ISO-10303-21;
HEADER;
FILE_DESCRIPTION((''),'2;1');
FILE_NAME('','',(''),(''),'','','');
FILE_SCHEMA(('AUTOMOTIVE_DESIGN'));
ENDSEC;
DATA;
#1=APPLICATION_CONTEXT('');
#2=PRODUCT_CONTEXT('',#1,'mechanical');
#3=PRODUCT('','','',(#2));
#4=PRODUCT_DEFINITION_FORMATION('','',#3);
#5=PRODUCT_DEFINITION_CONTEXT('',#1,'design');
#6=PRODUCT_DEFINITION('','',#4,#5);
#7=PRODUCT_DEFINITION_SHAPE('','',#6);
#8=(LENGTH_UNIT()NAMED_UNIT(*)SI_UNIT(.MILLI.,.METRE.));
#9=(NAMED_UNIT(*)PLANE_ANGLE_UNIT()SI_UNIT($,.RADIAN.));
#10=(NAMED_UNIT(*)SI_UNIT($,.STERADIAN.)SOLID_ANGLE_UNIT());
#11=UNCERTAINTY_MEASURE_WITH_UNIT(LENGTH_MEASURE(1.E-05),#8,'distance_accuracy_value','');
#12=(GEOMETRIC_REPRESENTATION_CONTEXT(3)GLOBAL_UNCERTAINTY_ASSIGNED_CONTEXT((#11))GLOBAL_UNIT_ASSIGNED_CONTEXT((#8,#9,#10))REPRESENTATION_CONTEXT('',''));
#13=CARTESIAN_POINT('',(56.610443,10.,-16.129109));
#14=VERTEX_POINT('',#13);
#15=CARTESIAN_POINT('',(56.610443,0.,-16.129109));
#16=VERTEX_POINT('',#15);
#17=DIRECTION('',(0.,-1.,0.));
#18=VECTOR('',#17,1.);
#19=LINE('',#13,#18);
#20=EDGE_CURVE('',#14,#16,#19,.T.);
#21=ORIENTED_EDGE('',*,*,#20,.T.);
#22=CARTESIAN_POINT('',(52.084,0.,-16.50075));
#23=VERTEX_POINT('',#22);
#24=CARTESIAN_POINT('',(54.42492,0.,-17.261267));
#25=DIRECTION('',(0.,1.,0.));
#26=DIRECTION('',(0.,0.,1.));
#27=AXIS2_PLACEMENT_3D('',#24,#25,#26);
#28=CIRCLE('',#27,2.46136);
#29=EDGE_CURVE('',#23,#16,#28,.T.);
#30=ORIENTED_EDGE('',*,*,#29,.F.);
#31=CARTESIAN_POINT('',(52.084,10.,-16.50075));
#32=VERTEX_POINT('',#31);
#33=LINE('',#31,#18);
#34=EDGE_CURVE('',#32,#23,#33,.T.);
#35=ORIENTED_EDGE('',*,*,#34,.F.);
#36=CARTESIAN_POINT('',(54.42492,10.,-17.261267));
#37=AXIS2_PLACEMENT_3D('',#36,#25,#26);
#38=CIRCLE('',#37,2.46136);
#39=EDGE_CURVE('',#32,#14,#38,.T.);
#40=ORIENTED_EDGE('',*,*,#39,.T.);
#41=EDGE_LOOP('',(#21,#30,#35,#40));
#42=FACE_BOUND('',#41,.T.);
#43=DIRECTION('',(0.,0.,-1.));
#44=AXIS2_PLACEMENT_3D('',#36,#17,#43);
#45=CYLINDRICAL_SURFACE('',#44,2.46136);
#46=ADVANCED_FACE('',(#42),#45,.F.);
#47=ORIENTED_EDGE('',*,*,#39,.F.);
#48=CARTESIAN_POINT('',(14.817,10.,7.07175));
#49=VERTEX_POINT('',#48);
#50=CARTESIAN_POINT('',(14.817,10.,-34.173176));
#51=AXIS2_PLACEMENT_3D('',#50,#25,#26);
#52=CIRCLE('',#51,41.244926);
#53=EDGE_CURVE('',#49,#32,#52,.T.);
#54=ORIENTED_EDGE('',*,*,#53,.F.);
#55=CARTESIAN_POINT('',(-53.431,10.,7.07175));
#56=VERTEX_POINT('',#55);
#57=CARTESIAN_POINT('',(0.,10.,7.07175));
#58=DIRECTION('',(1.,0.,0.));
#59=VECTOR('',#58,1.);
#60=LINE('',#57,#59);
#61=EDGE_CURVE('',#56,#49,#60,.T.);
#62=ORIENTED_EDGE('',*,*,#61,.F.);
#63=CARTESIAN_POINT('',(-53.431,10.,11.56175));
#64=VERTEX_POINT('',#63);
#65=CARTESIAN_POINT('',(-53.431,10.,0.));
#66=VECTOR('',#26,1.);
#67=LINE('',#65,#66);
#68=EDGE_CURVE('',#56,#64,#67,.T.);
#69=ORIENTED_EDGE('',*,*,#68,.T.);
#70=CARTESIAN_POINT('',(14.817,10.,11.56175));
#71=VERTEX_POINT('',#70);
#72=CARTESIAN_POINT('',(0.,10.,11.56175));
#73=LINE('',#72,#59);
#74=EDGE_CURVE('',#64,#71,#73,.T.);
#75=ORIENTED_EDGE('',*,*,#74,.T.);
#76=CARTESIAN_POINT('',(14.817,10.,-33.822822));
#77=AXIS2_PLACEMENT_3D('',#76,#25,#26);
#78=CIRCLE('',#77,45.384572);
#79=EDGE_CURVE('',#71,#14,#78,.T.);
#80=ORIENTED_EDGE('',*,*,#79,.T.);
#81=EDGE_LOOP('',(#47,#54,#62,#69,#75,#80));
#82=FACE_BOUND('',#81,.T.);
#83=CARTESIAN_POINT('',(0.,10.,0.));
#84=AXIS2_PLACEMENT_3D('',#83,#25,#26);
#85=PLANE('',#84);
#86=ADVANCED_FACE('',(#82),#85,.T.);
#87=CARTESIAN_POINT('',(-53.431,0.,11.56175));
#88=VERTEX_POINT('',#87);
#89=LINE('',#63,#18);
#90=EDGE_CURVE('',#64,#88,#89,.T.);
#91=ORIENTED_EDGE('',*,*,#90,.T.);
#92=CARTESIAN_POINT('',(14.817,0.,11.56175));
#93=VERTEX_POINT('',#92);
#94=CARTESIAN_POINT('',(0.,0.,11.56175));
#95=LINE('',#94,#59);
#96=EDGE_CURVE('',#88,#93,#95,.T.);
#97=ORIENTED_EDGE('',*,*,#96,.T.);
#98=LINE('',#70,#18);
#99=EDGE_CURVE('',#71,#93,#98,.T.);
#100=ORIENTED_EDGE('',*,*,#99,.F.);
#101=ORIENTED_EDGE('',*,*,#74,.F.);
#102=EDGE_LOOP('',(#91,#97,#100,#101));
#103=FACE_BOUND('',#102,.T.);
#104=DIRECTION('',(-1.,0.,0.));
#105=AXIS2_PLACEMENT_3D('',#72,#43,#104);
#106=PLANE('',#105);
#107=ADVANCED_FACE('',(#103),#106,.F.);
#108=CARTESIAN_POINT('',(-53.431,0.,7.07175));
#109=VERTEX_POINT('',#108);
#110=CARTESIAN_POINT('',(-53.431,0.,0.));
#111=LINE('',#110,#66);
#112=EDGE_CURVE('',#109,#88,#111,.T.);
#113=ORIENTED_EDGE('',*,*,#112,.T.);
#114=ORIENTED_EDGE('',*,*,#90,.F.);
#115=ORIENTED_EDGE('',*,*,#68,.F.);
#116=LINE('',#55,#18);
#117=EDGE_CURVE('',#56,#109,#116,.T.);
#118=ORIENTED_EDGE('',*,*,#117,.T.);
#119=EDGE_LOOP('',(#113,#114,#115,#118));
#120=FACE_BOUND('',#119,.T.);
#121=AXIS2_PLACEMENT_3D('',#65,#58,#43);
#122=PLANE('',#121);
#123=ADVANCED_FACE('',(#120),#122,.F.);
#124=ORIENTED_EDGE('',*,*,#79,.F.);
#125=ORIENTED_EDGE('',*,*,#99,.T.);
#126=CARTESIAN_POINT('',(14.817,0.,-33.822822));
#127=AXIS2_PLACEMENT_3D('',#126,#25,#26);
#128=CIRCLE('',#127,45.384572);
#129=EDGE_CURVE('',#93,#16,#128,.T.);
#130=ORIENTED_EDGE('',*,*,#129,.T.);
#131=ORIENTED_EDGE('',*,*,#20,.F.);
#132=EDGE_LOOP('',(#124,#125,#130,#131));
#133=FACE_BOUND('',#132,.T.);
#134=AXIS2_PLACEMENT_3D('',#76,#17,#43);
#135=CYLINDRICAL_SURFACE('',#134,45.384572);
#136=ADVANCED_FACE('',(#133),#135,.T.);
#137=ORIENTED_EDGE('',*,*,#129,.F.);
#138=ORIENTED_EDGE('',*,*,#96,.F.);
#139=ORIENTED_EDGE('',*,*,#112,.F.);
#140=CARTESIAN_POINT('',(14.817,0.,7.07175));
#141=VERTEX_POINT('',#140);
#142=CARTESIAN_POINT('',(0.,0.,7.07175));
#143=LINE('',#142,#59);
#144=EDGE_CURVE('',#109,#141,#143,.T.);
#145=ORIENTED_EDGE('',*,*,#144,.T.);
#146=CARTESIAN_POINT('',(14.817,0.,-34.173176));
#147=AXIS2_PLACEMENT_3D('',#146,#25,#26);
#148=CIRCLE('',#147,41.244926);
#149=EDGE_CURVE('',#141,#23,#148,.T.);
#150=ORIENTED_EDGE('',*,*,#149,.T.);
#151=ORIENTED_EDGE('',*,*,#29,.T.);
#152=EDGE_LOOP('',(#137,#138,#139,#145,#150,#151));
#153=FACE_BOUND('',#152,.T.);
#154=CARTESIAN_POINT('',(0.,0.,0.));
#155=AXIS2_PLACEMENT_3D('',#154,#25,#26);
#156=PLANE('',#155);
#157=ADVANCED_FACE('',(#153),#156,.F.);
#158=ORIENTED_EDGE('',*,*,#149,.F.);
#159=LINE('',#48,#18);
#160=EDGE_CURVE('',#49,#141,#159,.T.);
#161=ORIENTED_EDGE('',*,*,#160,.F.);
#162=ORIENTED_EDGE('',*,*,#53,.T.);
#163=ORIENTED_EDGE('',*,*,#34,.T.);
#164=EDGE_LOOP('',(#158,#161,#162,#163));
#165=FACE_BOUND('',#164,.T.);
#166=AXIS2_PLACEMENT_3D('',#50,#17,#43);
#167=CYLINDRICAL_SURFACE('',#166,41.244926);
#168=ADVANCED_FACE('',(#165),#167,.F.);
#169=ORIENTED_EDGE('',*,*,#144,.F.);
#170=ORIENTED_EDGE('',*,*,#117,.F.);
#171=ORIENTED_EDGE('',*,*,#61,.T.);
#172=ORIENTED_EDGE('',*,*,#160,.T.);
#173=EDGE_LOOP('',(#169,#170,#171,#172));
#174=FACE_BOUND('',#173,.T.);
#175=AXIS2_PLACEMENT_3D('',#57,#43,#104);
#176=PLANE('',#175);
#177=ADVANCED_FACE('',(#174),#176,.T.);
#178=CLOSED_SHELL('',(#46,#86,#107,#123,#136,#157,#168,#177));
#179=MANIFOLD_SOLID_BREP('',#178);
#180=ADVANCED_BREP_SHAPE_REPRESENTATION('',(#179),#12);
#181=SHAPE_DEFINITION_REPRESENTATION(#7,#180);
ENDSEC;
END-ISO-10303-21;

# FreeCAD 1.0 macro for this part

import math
import FreeCAD as App
import Part
import Sketcher

V = App.Vector

doc = App.newDocument("Part")
body = doc.addObject("PartDesign::Body", "Body")

sketch1 = body.newObject("Sketcher::SketchObject", "Sketch")
sketch1.AttachmentSupport = (doc.getObject("XZ_Plane"), [""])
sketch1.MapMode = "FlatFace"
sketch1.addGeometry([
    Part.LineSegment(V(-53.4, 7.1, 0), V(-53.4, 11.6, 0)),
    Part.LineSegment(V(-53.4, 11.6, 0), V(14.8, 11.6, 0)),
    Part.ArcOfCircle(Part.Circle(V(14.8, -33.8, 0), V(0, 0, 1), 45.4), math.radians(23), math.radians(90)),
    Part.ArcOfCircle(Part.Circle(V(54.4, -17.3, 0), V(0, 0, 1), 2.5), math.radians(27), math.radians(162)),
    Part.ArcOfCircle(Part.Circle(V(14.8, -34.2, 0), V(0, 0, 1), 41.2), math.radians(25), math.radians(90)),
    Part.LineSegment(V(14.8, 7.1, 0), V(-53.4, 7.1, 0)),
], False)
sketch1.addConstraint([
    Sketcher.Constraint("Coincident", 0, 2, 1, 1),
    Sketcher.Constraint("Tangent", 1, 2, 2, 2),
    Sketcher.Constraint("Coincident", 2, 1, 3, 1),
    Sketcher.Constraint("Coincident", 3, 2, 4, 1),
    Sketcher.Constraint("Tangent", 4, 2, 5, 1),
    Sketcher.Constraint("Coincident", 5, 2, 0, 1),
    Sketcher.Constraint("Vertical", 0),
    Sketcher.Constraint("Horizontal", 1),
    Sketcher.Constraint("Horizontal", 5),
    Sketcher.Constraint("Vertical", 2, 3, 4, 3),
    Sketcher.Constraint("DistanceY", 0, 1, 0, 2, 4.49),
    Sketcher.Constraint("DistanceX", 1, 1, 1, 2, 68.248),
    Sketcher.Constraint("Radius", 3, 2.46136),
    Sketcher.Constraint("DistanceX", -1, 1, 2, 3, 14.817),
    Sketcher.Constraint("DistanceX", -1, 1, 3, 2, 52.084),
    Sketcher.Constraint("Radius", 2, 45.384572),
    Sketcher.Constraint("Radius", 4, 41.244926),
    Sketcher.Constraint("DistanceX", -1, 1, 3, 3, 54.42492),
    Sketcher.Constraint("DistanceY", -1, 1, 0, 2, 11.56175),
])
pad1 = body.newObject("PartDesign::Pad", "Pad")
pad1.Profile = sketch1
pad1.Length = 10
pad1.Reversed = True

doc.recompute()
